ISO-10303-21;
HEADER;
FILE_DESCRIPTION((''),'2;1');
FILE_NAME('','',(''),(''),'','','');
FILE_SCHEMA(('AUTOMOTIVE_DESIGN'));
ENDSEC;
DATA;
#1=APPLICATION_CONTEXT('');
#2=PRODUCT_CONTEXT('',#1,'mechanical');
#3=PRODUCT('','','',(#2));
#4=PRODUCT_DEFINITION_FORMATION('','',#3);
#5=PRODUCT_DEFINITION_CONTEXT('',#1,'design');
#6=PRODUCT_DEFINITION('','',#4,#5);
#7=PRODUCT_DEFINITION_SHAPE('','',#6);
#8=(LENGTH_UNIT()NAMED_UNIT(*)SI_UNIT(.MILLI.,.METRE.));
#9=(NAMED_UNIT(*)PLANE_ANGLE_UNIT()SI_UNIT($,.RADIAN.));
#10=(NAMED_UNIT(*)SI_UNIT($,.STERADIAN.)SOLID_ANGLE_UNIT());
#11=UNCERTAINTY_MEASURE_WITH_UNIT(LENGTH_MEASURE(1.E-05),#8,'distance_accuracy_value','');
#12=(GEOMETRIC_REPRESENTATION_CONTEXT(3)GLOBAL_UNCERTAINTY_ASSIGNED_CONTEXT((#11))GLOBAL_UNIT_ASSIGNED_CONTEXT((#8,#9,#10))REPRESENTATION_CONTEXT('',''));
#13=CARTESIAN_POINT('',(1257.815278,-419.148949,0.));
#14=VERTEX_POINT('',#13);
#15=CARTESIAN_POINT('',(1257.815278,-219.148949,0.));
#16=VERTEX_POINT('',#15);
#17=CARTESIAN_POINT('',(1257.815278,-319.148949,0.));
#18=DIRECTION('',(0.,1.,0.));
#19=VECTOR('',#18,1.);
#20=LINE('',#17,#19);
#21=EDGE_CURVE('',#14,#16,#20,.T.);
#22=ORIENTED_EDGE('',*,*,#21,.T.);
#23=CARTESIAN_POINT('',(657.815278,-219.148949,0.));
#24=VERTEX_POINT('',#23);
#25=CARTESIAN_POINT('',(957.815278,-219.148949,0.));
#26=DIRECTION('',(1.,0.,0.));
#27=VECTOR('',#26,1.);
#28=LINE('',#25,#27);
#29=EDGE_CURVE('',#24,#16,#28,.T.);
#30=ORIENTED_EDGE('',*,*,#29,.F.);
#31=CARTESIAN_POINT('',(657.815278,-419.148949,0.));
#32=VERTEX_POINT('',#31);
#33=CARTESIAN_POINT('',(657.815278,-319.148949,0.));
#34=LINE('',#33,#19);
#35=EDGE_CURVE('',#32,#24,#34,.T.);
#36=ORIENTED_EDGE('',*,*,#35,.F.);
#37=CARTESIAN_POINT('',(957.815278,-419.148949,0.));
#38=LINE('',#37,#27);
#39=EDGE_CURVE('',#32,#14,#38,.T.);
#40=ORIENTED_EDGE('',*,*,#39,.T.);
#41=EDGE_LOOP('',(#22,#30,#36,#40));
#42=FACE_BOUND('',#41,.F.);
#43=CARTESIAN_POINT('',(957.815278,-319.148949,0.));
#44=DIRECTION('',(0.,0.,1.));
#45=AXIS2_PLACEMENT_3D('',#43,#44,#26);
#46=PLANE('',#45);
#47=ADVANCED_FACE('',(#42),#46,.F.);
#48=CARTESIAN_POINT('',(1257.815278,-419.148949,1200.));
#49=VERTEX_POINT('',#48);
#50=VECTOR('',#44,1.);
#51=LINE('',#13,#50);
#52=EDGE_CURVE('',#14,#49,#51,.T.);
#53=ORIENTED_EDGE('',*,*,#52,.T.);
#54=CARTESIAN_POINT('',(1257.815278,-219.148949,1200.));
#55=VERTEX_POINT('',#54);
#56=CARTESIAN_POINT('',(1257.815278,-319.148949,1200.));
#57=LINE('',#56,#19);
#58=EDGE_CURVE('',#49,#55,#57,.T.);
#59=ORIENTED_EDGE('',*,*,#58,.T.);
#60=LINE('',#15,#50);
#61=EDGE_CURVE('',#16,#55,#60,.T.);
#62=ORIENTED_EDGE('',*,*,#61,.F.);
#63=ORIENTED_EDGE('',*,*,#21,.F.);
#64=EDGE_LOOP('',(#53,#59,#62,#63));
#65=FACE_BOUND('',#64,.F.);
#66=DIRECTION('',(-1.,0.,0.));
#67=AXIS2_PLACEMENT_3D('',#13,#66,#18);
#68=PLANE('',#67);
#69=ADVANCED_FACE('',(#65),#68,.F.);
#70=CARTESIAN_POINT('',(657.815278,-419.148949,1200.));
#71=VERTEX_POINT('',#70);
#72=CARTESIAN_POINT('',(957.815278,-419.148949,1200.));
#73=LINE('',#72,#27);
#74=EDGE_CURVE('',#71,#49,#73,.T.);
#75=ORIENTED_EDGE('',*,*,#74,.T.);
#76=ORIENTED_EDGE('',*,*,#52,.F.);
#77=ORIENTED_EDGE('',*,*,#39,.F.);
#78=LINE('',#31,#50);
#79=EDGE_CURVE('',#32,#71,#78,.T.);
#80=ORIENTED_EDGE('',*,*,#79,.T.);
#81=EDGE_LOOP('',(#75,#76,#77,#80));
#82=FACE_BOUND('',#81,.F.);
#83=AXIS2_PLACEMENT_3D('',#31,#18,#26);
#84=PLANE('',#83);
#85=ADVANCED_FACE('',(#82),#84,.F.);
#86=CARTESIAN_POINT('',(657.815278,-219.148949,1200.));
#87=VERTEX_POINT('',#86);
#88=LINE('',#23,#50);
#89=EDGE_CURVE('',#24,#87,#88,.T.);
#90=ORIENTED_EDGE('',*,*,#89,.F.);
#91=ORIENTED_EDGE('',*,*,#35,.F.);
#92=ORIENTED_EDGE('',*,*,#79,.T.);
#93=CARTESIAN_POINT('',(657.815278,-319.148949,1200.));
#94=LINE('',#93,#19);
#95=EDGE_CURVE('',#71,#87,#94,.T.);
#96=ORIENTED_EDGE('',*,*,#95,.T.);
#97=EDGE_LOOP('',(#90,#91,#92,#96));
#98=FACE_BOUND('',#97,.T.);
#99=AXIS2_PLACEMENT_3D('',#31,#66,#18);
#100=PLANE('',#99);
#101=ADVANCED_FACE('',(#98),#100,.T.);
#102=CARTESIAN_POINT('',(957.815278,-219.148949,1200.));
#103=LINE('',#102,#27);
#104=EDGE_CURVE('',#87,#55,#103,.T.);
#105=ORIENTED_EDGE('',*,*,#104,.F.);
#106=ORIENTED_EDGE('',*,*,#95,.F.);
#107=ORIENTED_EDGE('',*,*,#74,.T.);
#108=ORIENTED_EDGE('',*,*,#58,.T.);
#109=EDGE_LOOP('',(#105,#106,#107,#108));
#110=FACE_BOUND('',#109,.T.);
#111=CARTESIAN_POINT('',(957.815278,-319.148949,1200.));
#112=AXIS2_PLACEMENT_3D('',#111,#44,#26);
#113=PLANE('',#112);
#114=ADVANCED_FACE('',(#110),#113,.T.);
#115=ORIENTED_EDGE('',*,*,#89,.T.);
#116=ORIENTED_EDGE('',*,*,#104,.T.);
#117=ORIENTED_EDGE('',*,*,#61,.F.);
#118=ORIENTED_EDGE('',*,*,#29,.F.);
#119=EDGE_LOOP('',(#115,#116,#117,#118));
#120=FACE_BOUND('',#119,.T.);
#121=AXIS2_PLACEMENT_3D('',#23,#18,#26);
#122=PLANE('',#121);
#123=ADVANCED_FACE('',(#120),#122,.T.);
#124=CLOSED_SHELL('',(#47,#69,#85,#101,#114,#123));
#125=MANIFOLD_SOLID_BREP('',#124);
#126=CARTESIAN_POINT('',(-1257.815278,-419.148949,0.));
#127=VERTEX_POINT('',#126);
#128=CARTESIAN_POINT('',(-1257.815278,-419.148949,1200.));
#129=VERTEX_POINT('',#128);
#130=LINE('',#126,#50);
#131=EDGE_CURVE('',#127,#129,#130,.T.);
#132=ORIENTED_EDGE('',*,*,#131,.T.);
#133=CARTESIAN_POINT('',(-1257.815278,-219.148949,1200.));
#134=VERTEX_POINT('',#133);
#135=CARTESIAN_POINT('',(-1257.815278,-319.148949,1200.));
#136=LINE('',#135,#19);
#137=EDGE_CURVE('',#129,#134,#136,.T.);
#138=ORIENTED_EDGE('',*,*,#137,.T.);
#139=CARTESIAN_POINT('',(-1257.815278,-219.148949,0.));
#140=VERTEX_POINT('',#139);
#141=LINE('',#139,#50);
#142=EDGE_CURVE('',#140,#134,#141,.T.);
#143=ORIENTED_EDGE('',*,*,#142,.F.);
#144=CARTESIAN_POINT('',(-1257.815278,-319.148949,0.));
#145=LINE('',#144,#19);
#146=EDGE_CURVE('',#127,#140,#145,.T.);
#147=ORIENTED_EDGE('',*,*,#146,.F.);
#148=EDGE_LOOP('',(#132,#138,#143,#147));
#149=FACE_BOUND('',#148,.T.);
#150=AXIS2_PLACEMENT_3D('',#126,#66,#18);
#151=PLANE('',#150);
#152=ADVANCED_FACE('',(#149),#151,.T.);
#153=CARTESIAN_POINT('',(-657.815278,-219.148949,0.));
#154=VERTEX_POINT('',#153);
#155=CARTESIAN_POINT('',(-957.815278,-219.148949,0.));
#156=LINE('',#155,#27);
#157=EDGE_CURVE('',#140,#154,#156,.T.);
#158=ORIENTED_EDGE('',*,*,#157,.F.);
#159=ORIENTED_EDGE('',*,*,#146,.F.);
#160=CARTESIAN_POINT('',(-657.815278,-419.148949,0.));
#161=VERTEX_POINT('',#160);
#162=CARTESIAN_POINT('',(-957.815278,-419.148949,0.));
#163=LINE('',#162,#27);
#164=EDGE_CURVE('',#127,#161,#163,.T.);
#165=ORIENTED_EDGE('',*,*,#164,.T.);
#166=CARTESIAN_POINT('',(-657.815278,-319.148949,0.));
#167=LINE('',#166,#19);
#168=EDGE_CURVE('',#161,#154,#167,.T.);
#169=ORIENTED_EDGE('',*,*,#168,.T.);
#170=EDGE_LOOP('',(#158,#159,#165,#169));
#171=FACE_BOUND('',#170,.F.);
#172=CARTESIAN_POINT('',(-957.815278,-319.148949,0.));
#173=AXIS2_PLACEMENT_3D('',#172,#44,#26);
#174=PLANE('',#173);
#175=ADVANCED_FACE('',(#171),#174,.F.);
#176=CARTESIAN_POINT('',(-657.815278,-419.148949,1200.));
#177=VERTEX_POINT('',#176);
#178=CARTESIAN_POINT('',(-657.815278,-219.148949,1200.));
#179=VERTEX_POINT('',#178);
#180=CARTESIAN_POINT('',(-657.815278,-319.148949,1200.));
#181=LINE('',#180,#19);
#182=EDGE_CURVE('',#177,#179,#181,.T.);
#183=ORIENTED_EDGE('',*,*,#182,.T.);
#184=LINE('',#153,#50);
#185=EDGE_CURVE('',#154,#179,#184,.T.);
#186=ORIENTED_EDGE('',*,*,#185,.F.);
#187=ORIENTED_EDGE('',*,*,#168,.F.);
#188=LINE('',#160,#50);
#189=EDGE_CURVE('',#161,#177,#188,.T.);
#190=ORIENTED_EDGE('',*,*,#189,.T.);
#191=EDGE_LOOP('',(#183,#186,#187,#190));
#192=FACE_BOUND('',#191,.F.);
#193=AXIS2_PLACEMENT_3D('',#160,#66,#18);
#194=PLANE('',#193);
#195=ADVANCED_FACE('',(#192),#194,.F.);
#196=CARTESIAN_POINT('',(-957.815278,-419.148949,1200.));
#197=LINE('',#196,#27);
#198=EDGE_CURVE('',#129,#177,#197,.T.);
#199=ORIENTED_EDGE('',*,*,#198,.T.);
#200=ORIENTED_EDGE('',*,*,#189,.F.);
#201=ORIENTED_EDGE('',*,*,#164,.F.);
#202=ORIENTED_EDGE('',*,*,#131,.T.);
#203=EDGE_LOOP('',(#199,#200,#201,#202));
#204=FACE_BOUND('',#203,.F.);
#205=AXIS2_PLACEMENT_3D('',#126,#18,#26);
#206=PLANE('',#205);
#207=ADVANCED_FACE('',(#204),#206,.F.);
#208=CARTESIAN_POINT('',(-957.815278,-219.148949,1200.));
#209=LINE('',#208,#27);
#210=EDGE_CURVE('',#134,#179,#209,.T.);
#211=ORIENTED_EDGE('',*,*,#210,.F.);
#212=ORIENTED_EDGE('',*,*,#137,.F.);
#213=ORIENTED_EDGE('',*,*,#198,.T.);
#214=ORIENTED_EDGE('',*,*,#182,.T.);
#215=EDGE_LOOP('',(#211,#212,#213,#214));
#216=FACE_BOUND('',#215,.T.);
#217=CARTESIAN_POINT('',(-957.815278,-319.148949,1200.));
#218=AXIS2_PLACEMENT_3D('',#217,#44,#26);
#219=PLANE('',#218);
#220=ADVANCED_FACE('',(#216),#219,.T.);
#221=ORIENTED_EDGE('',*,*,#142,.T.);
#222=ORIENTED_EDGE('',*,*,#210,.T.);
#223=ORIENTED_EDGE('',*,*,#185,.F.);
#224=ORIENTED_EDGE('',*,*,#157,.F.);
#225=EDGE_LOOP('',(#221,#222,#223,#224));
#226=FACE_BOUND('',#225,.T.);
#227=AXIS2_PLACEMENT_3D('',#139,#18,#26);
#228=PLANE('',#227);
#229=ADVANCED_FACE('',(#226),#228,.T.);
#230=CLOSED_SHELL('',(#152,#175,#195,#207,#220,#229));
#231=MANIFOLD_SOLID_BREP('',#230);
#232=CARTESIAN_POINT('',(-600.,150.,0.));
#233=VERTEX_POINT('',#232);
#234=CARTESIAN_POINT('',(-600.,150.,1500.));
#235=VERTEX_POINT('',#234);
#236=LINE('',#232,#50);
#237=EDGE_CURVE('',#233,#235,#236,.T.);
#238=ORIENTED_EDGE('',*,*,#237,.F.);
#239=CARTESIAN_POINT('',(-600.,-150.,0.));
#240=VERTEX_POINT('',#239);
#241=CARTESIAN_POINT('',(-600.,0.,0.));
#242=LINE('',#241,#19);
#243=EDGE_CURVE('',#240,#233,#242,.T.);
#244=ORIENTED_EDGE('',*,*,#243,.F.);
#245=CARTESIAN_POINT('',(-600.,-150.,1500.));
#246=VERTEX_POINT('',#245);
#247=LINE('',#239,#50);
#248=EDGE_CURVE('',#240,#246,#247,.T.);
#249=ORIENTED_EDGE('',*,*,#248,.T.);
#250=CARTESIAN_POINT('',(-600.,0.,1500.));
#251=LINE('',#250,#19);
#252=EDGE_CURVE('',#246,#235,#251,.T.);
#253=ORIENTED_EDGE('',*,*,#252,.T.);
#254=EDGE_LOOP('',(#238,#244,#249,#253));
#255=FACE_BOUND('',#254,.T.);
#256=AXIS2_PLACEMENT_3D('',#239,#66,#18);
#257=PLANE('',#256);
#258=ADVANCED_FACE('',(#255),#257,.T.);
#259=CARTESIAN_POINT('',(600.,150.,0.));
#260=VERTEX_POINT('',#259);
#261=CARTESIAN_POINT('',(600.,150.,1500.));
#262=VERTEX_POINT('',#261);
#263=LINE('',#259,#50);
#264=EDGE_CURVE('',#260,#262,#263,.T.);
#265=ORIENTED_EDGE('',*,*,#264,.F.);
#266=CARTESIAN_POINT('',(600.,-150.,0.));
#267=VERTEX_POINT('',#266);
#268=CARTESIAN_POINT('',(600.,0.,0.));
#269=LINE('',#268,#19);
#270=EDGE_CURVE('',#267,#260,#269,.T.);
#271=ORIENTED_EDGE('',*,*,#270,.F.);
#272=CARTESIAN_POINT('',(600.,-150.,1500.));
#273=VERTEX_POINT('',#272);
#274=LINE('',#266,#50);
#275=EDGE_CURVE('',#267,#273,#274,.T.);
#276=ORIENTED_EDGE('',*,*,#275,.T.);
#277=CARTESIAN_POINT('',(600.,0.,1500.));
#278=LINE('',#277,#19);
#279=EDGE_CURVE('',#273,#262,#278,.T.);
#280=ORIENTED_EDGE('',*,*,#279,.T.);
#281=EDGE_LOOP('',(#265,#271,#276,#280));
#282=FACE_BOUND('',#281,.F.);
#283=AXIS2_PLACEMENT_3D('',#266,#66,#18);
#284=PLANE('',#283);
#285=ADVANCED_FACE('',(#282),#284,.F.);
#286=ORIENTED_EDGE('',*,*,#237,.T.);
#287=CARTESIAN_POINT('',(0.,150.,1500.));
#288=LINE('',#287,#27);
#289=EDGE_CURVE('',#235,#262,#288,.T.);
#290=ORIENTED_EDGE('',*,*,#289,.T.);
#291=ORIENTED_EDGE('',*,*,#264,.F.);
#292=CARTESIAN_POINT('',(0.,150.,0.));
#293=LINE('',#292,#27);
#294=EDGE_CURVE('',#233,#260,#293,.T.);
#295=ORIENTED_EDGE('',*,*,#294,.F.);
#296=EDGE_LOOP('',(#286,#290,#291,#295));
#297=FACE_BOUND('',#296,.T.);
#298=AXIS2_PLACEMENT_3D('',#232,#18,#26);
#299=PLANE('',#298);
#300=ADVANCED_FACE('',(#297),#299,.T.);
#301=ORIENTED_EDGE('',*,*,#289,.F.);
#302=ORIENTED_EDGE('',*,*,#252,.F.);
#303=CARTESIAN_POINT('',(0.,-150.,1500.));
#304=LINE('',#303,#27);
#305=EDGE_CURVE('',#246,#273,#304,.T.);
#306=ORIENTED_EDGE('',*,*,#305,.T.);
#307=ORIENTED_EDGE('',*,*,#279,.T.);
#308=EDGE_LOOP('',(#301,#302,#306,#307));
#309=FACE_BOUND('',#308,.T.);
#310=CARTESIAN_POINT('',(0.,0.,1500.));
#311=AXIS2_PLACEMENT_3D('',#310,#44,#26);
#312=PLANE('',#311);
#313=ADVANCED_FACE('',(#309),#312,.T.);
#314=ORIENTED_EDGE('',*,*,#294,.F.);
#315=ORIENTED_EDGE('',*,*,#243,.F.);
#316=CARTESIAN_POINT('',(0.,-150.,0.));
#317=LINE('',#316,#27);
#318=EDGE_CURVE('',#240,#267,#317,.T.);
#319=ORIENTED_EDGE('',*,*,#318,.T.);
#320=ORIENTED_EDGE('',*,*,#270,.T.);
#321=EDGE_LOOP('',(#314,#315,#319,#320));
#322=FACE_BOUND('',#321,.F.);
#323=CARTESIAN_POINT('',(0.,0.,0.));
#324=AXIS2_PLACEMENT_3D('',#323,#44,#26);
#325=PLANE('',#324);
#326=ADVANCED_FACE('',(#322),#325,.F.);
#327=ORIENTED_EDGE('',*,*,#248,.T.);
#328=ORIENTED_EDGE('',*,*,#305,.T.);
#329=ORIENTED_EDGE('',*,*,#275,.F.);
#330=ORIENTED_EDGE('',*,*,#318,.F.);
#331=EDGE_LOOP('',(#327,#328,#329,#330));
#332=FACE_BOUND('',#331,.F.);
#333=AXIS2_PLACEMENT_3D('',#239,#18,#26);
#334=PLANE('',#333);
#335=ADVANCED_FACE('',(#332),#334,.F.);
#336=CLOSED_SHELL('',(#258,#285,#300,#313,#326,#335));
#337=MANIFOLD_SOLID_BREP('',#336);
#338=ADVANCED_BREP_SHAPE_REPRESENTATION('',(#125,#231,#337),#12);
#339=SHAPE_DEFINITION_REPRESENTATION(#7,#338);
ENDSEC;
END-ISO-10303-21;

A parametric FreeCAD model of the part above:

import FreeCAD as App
import Part
import Sketcher

V = App.Vector
Q = App.Units.Quantity


def add_polygon(sketch, points):
    """Adds a closed chain of lines whose ends are joined by coincident constraints."""
    first, n = sketch.GeometryCount, len(points)
    for a, b in zip(points, points[1:] + points[:1]):
        sketch.addGeometry(Part.LineSegment(App.Vector(*a, 0), App.Vector(*b, 0)), False)
    for i in range(n):
        sketch.addConstraint(Sketcher.Constraint("Coincident", first + i, 2, first + (i + 1) % n, 1))

doc = App.newDocument("Part")
params = doc.addObject("Spreadsheet::Sheet", "Params")
for row, (alias, value) in enumerate([
    ("sketch1_width", "1200 mm"),
    ("sketch1_height", "300 mm"),
    ("pad1_length", "1500 mm"),
    ("sketch2_width", "600 mm"),
    ("sketch2_height", "200 mm"),
    ("pad2_length", "1200 mm"),
], start=1):
    params.set(f"A{row}", alias)
    params.set(f"B{row}", "=" + value)
    params.setAlias(f"B{row}", alias)

body = doc.addObject("PartDesign::Body", "Body")

sketch1 = body.newObject("Sketcher::SketchObject", "Sketch")
sketch1.AttachmentSupport = (doc.getObject("XY_Plane"), [""])
sketch1.MapMode = "FlatFace"
add_polygon(sketch1, [(-600, 150), (-600, -150), (600, -150), (600, 150)])
sketch1.addConstraint([
    Sketcher.Constraint("Vertical", 0),
    Sketcher.Constraint("Horizontal", 1),
    Sketcher.Constraint("Vertical", 2),
    Sketcher.Constraint("Horizontal", 3),
    Sketcher.Constraint("Symmetric", 0, 2, 2, 2, -1, 1),
    Sketcher.Constraint("DistanceX", 1, 1, 1, 2, Q("1200 mm")),
    Sketcher.Constraint("DistanceY", 0, 2, 0, 1, Q("300 mm")),
])
sketch1.setExpression("Constraints[9]", "Params.sketch1_width")
sketch1.setExpression("Constraints[10]", "Params.sketch1_height")
pad1 = body.newObject("PartDesign::Pad", "Pad")
pad1.Profile = sketch1
pad1.setExpression("Length", "Params.pad1_length")
body2 = doc.addObject("PartDesign::Body", "Body001")
body2.AllowCompound = True

sketch2 = body2.newObject("Sketcher::SketchObject", "Sketch001")
sketch2.AttachmentSupport = (doc.getObject("XY_Plane001"), [""])
sketch2.MapMode = "FlatFace"
add_polygon(sketch2, [(-1258, -219), (-1258, -419), (-658, -419), (-658, -219)])
add_polygon(sketch2, [(658, -219), (658, -419), (1258, -419), (1258, -219)])
sketch2.addConstraint([
    Sketcher.Constraint("Vertical", 0),
    Sketcher.Constraint("Horizontal", 1),
    Sketcher.Constraint("Vertical", 2),
    Sketcher.Constraint("Horizontal", 3),
    Sketcher.Constraint("Vertical", 4),
    Sketcher.Constraint("Horizontal", 5),
    Sketcher.Constraint("Vertical", 6),
    Sketcher.Constraint("Horizontal", 7),
    Sketcher.Constraint("Symmetric", 1, 2, 4, 2, -2),
    Sketcher.Constraint("Symmetric", 3, 2, 6, 2, -2),
    Sketcher.Constraint("DistanceX", 1, 1, 1, 2, Q("600 mm")),
    Sketcher.Constraint("DistanceY", 0, 2, 0, 1, Q("200 mm")),
    Sketcher.Constraint("DistanceX", 0, 2, -1, 1, Q("1257.815278 mm")),
    Sketcher.Constraint("DistanceY", 0, 2, -1, 1, Q("419.148949 mm")),
])
sketch2.setExpression("Constraints[18]", "Params.sketch2_width")
sketch2.setExpression("Constraints[19]", "Params.sketch2_height")
pad2 = body2.newObject("PartDesign::Pad", "Pad001")
pad2.Profile = sketch2
pad2.setExpression("Length", "Params.pad2_length")

doc.recompute()
